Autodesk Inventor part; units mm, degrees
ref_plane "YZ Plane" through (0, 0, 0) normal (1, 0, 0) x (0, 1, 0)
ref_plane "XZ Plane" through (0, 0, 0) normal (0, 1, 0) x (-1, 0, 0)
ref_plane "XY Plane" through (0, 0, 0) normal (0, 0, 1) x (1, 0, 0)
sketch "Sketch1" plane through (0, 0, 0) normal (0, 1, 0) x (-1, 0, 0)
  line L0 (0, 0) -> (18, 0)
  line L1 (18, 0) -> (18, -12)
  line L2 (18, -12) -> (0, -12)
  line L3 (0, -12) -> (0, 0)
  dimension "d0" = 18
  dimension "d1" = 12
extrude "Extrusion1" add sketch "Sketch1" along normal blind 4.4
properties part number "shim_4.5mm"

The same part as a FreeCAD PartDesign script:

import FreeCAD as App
import Part
import Sketcher
from FreeCAD import Vector
Q = App.Units.Quantity

doc = App.newDocument("Part")
body = doc.addObject("PartDesign::Body", "Body")

# Sketch on XZ plane
sketch1 = body.newObject("Sketcher::SketchObject", "Sketch")
sketch1.AttachmentSupport = (doc.getObject("XZ_Plane"), [""])
sketch1.MapMode = "FlatFace"
sketch1.addGeometry([
    Part.LineSegment(Vector(-18, 0, 0), Vector(0, 0, 0)),
    Part.LineSegment(Vector(0, 0, 0), Vector(0, -12, 0)),
    Part.LineSegment(Vector(0, -12, 0), Vector(-18, -12, 0)),
    Part.LineSegment(Vector(-18, -12, 0), Vector(-18, 0, 0)),
], False)
sketch1.addConstraint([
    Sketcher.Constraint("Coincident", 0, 2, 1, 1),
    Sketcher.Constraint("Coincident", 1, 2, 2, 1),
    Sketcher.Constraint("Coincident", 2, 2, 3, 1),
    Sketcher.Constraint("Coincident", 3, 2, 0, 1),
    Sketcher.Constraint("Horizontal", 0),
    Sketcher.Constraint("Vertical", 1),
    Sketcher.Constraint("Horizontal", 2),
    Sketcher.Constraint("Vertical", 3),
    Sketcher.Constraint("Coincident", 0, 2, -1, 1),
    Sketcher.Constraint("DistanceX", 0, 1, 0, 2, Q("18 mm")),
    Sketcher.Constraint("DistanceY", 1, 2, 1, 1, Q("12 mm")),
])
pad1 = body.newObject("PartDesign::Pad", "Pad")
pad1.Profile = sketch1
pad1.Length = 4.4
pad1.Reversed = True

doc.recompute()
